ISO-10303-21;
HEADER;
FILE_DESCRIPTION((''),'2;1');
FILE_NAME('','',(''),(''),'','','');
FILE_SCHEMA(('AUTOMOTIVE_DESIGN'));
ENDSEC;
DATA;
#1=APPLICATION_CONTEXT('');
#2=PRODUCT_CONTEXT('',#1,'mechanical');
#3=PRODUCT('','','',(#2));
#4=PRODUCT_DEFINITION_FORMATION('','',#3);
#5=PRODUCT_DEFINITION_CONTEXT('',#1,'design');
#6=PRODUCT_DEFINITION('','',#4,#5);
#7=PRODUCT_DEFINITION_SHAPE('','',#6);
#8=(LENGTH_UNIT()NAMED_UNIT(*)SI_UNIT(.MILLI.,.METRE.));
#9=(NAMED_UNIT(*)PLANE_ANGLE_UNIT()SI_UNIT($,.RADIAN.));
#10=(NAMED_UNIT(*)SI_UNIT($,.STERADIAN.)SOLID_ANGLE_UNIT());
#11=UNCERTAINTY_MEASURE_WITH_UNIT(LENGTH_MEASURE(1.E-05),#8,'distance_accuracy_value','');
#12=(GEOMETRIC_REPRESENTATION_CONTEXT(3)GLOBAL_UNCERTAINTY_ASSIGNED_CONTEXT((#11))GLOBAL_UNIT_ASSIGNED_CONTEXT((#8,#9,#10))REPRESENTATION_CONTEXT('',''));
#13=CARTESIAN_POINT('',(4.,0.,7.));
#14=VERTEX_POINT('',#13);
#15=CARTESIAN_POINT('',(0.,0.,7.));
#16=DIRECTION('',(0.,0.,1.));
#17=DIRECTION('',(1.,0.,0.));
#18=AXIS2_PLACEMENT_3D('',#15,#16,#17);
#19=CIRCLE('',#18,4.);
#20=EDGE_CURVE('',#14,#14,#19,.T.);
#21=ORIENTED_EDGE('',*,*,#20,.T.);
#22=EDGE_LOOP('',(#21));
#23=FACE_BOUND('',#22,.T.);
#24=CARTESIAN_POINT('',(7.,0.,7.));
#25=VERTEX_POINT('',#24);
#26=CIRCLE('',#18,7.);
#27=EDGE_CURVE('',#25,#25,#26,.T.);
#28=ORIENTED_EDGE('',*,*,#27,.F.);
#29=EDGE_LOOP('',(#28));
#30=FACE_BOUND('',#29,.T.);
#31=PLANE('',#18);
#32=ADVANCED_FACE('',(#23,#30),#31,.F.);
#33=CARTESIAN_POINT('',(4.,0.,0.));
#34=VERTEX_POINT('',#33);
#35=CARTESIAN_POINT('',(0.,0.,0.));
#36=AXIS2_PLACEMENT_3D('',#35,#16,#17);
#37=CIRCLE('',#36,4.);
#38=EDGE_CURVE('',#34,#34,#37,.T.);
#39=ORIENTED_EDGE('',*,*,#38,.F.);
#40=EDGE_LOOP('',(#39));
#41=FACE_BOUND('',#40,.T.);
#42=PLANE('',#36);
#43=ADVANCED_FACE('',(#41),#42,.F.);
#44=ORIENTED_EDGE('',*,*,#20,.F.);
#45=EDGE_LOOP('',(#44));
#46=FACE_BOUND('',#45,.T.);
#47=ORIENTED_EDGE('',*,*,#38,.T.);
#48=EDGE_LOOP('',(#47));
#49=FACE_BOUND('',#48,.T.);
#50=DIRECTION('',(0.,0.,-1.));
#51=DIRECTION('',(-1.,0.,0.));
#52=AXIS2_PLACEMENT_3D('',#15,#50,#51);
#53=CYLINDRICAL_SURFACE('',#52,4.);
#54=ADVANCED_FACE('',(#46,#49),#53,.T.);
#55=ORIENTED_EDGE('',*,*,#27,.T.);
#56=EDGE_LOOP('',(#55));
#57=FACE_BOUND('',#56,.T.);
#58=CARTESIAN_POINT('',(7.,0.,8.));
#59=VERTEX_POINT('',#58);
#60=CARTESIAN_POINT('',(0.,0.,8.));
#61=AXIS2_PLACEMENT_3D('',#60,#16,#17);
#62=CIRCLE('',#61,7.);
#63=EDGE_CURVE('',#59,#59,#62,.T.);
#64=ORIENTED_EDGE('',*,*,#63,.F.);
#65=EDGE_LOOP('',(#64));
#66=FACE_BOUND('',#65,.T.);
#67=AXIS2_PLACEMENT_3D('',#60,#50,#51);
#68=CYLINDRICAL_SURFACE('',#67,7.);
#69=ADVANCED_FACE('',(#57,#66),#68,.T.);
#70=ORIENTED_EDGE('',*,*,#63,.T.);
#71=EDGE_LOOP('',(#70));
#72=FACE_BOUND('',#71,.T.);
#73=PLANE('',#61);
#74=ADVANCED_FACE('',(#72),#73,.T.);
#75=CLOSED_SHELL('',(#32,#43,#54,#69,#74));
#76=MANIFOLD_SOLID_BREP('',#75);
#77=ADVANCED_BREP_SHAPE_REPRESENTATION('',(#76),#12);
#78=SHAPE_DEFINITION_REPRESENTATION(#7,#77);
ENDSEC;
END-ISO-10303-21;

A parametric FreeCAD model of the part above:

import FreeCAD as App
import Part
import Sketcher

doc = App.newDocument("Part")
body = doc.addObject("PartDesign::Body", "Body")

# Sketch on XY plane
sketch1 = doc.addObject("Sketcher::SketchObject", "Sketch")
body.addObject(sketch1)
sketch1.AttachmentSupport = (doc.XY_Plane, [""])
sketch1.MapMode = "FlatFace"
sketch1.addGeometry(Part.Circle(App.Vector(0, 0, 0), App.Vector(0, 0, 1), 4), False)
sketch1.addConstraint(Sketcher.Constraint("Coincident", 0, 3, -1, 1))
sketch1.addConstraint(Sketcher.Constraint("Diameter", 0, 8.0))
pad1 = doc.addObject("PartDesign::Pad", "Pad")
body.addObject(pad1)
pad1.Profile = sketch1
pad1.Length = 7

# Sketch on XY plane
sketch2 = doc.addObject("Sketcher::SketchObject", "Sketch001")
body.addObject(sketch2)
sketch2.AttachmentSupport = (doc.XY_Plane, [""])
sketch2.MapMode = "FlatFace"
sketch2.AttachmentOffset = App.Placement(App.Vector(0, 0, 7), App.Rotation())
sketch2.addGeometry(Part.Circle(App.Vector(0, 0, 0), App.Vector(0, 0, 1), 7), False)
sketch2.addConstraint(Sketcher.Constraint("Coincident", 0, 3, -1, 1))
sketch2.addConstraint(Sketcher.Constraint("Diameter", 0, 14.0))
pad2 = doc.addObject("PartDesign::Pad", "Pad001")
body.addObject(pad2)
pad2.Profile = sketch2
pad2.Length = 1

doc.recompute()
